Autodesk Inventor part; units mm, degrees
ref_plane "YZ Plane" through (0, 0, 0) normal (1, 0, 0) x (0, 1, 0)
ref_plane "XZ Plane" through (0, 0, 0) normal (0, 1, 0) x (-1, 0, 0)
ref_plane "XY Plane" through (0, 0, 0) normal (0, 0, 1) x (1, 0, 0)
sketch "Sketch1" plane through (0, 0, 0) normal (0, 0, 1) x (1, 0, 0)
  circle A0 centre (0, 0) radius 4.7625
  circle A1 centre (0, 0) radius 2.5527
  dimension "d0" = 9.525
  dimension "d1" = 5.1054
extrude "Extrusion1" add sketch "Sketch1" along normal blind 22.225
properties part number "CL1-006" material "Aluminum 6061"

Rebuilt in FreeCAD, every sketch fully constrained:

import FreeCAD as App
import Part
import Sketcher
Q = App.Units.Quantity

doc = App.newDocument("Part")
params = doc.addObject("Spreadsheet::Sheet", "Params")
for row, (alias, value) in enumerate([
    ("sketch1_diameter", "0.375 in"),
    ("sketch1_diameter2", "0.201 in"),
    ("pad1_length", "0.875 in"),
], start=1):
    params.set(f"A{row}", alias)
    params.set(f"B{row}", "=" + value)
    params.setAlias(f"B{row}", alias)

body = doc.addObject("PartDesign::Body", "Body")

# Sketch on XY plane
sketch1 = doc.addObject("Sketcher::SketchObject", "Sketch")
body.addObject(sketch1)
sketch1.AttachmentSupport = (doc.XY_Plane, [""])
sketch1.MapMode = "FlatFace"
sketch1.addGeometry(Part.Circle(App.Vector(0, 0, 0), App.Vector(0, 0, 1), 4.8), False)
sketch1.addGeometry(Part.Circle(App.Vector(0, 0, 0), App.Vector(0, 0, 1), 2.6), False)
sketch1.addConstraint(Sketcher.Constraint("Coincident", 0, 3, -1, 1))
sketch1.addConstraint(Sketcher.Constraint("Coincident", 1, 3, -1, 1))
sketch1.addConstraint(Sketcher.Constraint("Diameter", 0, Q("0.375 in")))
sketch1.addConstraint(Sketcher.Constraint("Diameter", 1, Q("0.201 in")))
sketch1.setExpression("Constraints[2]", "Params.sketch1_diameter")
sketch1.setExpression("Constraints[3]", "Params.sketch1_diameter2")
pad1 = doc.addObject("PartDesign::Pad", "Pad")
body.addObject(pad1)
pad1.Profile = sketch1
pad1.setExpression("Length", "Params.pad1_length")

doc.recompute()
